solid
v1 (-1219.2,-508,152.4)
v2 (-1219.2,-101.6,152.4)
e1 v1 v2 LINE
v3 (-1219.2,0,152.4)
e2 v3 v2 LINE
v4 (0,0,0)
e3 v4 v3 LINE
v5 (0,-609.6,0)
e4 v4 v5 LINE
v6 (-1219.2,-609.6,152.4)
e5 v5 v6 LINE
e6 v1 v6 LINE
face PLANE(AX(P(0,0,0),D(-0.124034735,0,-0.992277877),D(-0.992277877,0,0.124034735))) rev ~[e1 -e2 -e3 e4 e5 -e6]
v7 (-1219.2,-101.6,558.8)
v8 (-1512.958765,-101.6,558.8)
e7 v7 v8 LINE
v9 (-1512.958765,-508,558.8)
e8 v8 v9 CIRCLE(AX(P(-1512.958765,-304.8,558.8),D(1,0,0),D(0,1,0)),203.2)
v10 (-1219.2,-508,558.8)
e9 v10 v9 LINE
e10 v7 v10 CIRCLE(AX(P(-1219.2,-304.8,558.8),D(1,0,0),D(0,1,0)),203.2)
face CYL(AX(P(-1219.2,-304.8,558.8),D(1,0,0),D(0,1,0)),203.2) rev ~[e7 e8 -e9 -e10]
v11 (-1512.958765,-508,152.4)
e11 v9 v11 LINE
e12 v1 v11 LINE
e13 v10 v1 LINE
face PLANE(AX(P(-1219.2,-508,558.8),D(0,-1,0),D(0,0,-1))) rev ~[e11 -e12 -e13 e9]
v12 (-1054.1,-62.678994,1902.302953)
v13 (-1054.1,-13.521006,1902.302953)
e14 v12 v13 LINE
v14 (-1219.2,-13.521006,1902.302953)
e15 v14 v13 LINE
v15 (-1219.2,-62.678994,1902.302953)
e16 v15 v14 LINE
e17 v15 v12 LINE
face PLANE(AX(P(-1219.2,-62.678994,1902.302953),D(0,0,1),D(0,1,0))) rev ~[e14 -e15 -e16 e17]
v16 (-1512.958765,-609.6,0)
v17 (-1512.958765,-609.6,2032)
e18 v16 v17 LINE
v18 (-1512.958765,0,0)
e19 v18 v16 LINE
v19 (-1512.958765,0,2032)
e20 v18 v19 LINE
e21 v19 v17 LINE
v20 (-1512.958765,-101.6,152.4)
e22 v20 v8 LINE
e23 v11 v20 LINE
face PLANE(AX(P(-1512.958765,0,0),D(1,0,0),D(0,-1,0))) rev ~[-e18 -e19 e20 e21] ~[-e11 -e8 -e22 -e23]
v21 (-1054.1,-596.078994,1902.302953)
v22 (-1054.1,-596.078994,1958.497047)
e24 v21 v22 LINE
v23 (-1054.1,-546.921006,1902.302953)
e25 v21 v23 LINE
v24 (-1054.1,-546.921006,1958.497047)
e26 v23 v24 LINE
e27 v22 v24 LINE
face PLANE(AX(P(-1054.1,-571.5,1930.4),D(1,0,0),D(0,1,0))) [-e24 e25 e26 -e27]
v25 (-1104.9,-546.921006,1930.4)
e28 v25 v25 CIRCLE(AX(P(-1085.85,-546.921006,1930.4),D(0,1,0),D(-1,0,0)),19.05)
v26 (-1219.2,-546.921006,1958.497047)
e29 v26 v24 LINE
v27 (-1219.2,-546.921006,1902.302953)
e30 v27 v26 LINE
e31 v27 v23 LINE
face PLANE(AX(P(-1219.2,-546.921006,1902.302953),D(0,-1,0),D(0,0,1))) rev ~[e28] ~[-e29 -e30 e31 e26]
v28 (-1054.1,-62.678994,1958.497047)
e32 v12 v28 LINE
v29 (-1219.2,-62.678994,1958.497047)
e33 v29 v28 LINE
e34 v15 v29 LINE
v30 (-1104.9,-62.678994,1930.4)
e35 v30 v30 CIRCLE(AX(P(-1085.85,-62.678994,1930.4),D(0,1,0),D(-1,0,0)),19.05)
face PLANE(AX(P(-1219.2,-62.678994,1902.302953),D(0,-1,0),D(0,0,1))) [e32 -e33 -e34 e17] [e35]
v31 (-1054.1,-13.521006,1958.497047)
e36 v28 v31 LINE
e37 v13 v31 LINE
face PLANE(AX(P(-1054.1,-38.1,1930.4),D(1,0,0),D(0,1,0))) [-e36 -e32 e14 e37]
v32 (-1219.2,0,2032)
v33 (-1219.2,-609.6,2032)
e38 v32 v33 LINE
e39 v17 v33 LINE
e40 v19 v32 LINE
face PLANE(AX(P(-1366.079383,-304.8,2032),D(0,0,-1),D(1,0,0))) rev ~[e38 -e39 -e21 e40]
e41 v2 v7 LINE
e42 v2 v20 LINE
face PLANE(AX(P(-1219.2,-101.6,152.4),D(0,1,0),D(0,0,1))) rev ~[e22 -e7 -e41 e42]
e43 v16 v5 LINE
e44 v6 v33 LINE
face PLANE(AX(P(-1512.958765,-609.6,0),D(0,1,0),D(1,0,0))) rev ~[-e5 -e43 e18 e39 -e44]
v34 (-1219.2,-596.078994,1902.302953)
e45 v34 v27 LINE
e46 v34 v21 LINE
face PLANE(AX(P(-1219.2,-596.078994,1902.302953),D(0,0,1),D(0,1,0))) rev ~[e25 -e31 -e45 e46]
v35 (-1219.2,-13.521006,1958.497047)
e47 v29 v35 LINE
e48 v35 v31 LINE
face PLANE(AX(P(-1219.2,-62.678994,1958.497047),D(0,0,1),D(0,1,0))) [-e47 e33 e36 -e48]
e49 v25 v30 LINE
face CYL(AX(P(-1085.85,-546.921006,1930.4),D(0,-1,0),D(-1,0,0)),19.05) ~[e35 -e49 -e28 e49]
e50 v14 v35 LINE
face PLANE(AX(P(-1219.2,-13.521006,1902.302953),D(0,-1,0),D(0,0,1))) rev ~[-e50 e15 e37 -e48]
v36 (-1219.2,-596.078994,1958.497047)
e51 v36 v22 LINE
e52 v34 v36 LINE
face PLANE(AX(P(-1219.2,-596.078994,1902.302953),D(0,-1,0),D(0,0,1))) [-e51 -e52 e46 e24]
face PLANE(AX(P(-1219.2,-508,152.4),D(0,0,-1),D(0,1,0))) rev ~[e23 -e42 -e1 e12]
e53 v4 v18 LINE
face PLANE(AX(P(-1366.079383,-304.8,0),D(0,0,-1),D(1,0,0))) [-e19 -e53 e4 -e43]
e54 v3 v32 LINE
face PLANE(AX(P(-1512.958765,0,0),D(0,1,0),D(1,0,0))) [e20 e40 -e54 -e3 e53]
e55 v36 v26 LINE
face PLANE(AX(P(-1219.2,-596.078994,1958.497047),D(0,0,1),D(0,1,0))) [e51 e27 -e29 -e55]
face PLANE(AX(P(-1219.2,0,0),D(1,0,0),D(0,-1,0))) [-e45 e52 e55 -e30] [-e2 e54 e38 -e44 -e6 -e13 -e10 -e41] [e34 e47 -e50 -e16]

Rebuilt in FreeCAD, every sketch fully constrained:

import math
import FreeCAD as App
import Part
import Sketcher
from FreeCAD import Vector
Q = App.Units.Quantity


def add_polygon(sketch, points):
    """Adds a closed chain of lines whose ends are joined by coincident constraints."""
    first, n = sketch.GeometryCount, len(points)
    for a, b in zip(points, points[1:] + points[:1]):
        sketch.addGeometry(Part.LineSegment(App.Vector(*a, 0), App.Vector(*b, 0)), False)
    for i in range(n):
        sketch.addConstraint(Sketcher.Constraint("Coincident", first + i, 2, first + (i + 1) % n, 1))

doc = App.newDocument("Part")
body = doc.addObject("PartDesign::Body", "Body")

# Sketch on XZ plane
sketch1 = body.newObject("Sketcher::SketchObject", "Sketch")
sketch1.AttachmentSupport = (doc.getObject("XZ_Plane"), [""])
sketch1.MapMode = "FlatFace"
add_polygon(sketch1, [(-1219, 0), (0, 0), (-1219, 152)])  # lines 0-2
sketch1.addConstraint([
    Sketcher.Constraint("Horizontal", 0),
    Sketcher.Constraint("Vertical", 2),
    Sketcher.Constraint("Coincident", 0, 2, -1, 1),
    Sketcher.Constraint("DistanceX", 0, 1, 0, 2, Q("48 in")),
    Sketcher.Constraint("DistanceY", 2, 2, 2, 1, Q("6 in")),
])
pad1 = body.newObject("PartDesign::Pad", "Pad")
pad1.Profile = sketch1
pad1.Length = Q("24 in")

# Sketch on XY plane
sketch2 = body.newObject("Sketcher::SketchObject", "Sketch001")
sketch2.AttachmentSupport = (doc.getObject("XY_Plane"), [""])
sketch2.MapMode = "FlatFace"
add_polygon(sketch2, [(-1513, -610), (-1513, 0), (-1219, 0), (-1219, -610)])  # lines 0-3
sketch2.addConstraint([
    Sketcher.Constraint("Vertical", 0),
    Sketcher.Constraint("Horizontal", 1),
    Sketcher.Constraint("Vertical", 2),
    Sketcher.Constraint("Horizontal", 3),
    Sketcher.Constraint("PointOnObject", 0, 2, -1),
    Sketcher.Constraint("DistanceY", 0, 1, 0, 2, Q("24 in")),
    Sketcher.Constraint("DistanceX", 1, 2, -1, 1, Q("48 in")),
    Sketcher.Constraint("DistanceX", 1, 1, 1, 2, Q("293.758765 mm")),
])
pad2 = body.newObject("PartDesign::Pad", "Pad001")
pad2.Profile = sketch2
pad2.Length = Q("80 in")

# Sketch on YZ plane
sketch3 = body.newObject("Sketcher::SketchObject", "Sketch002")
sketch3.AttachmentSupport = (doc.getObject("YZ_Plane"), [""])
sketch3.MapMode = "FlatFace"
sketch3.AttachmentOffset = App.Placement(Vector(0, 0, -48 * 25.4), App.Rotation())
add_polygon(sketch3, [(-596, 1958), (-596, 1902), (-547, 1902), (-547, 1958)])  # lines 0-3
add_polygon(sketch3, [(-63, 1958), (-63, 1902), (-14, 1902), (-14, 1958)])  # lines 4-7
sketch3.addConstraint([
    Sketcher.Constraint("Vertical", 0),
    Sketcher.Constraint("Horizontal", 1),
    Sketcher.Constraint("Vertical", 2),
    Sketcher.Constraint("Horizontal", 3),
    Sketcher.Constraint("Vertical", 4),
    Sketcher.Constraint("Horizontal", 5),
    Sketcher.Constraint("Vertical", 6),
    Sketcher.Constraint("Horizontal", 7),
    Sketcher.Constraint("Horizontal", 1, 2, 4, 2),
    Sketcher.Constraint("Horizontal", 3, 2, 6, 2),
    Sketcher.Constraint("Equal", 3, 5),
    Sketcher.Constraint("DistanceX", 0, 2, 4, 2, Q("21 in")),
    Sketcher.Constraint("DistanceX", 1, 1, 1, 2, Q("49.157987 mm")),
    Sketcher.Constraint("DistanceY", 0, 2, 0, 1, Q("56.194095 mm")),
    Sketcher.Constraint("DistanceX", 0, 2, -1, 1, Q("596.078994 mm")),
    Sketcher.Constraint("DistanceY", -1, 1, 0, 2, Q("1902.302953 mm")),
])
pad3 = body.newObject("PartDesign::Pad", "Pad002")
pad3.Profile = sketch3
pad3.Length = Q("6.5 in")

# Sketch on XZ plane
sketch4 = body.newObject("Sketcher::SketchObject", "Sketch003")
sketch4.AttachmentSupport = (doc.getObject("XZ_Plane"), [""])
sketch4.MapMode = "FlatFace"
sketch4.AttachmentOffset = App.Placement(Vector(0, 0, 546.921006), App.Rotation())
sketch4.addGeometry(Part.Circle(Vector(-1086, 1930, 0), Vector(0, 0, 1), 19), False)
sketch4.addConstraint([
    Sketcher.Constraint("Diameter", 0, Q("1.5 in")),
    Sketcher.Constraint("DistanceY", -1, 1, 0, 3, Q("76 in")),
    Sketcher.Constraint("DistanceX", 0, 3, -1, 1, Q("42.75 in")),
])
pad4 = body.newObject("PartDesign::Pad", "Pad003")
pad4.Profile = sketch4
pad4.Type = "UpToLast"
pad4.Reversed = True

# Sketch on YZ plane
sketch5 = body.newObject("Sketcher::SketchObject", "Sketch004")
sketch5.AttachmentSupport = (doc.getObject("YZ_Plane"), [""])
sketch5.MapMode = "FlatFace"
sketch5.AttachmentOffset = App.Placement(Vector(0, 0, -48 * 25.4), App.Rotation())
sketch5.addGeometry([
    Part.LineSegment(Vector(-508, 559, 0), Vector(-508, 152, 0)),
    Part.LineSegment(Vector(-508, 152, 0), Vector(-102, 152, 0)),
    Part.LineSegment(Vector(-102, 152, 0), Vector(-102, 559, 0)),
    Part.ArcOfCircle(Part.Circle(Vector(-305, 559, 0), Vector(0, 0, 1), 203), math.radians(0), math.radians(180)),
], False)
sketch5.addConstraint([
    Sketcher.Constraint("Coincident", 0, 2, 1, 1),
    Sketcher.Constraint("Coincident", 1, 2, 2, 1),
    Sketcher.Constraint("Tangent", 2, 2, 3, 1),
    Sketcher.Constraint("Tangent", 3, 2, 0, 1),
    Sketcher.Constraint("Vertical", 0),
    Sketcher.Constraint("Horizontal", 1),
    Sketcher.Constraint("Vertical", 2),
    Sketcher.Constraint("Equal", 1, 0),
    Sketcher.Constraint("Radius", 3, Q("8 in")),
    Sketcher.Constraint("DistanceX", 3, 3, -1, 1, Q("12 in")),
    Sketcher.Constraint("DistanceY", -1, 1, 3, 3, Q("22 in")),
])
pocket1 = body.newObject("PartDesign::Pocket", "Pocket")
pocket1.Profile = sketch5
pocket1.Type = "ThroughAll"

doc.recompute()
